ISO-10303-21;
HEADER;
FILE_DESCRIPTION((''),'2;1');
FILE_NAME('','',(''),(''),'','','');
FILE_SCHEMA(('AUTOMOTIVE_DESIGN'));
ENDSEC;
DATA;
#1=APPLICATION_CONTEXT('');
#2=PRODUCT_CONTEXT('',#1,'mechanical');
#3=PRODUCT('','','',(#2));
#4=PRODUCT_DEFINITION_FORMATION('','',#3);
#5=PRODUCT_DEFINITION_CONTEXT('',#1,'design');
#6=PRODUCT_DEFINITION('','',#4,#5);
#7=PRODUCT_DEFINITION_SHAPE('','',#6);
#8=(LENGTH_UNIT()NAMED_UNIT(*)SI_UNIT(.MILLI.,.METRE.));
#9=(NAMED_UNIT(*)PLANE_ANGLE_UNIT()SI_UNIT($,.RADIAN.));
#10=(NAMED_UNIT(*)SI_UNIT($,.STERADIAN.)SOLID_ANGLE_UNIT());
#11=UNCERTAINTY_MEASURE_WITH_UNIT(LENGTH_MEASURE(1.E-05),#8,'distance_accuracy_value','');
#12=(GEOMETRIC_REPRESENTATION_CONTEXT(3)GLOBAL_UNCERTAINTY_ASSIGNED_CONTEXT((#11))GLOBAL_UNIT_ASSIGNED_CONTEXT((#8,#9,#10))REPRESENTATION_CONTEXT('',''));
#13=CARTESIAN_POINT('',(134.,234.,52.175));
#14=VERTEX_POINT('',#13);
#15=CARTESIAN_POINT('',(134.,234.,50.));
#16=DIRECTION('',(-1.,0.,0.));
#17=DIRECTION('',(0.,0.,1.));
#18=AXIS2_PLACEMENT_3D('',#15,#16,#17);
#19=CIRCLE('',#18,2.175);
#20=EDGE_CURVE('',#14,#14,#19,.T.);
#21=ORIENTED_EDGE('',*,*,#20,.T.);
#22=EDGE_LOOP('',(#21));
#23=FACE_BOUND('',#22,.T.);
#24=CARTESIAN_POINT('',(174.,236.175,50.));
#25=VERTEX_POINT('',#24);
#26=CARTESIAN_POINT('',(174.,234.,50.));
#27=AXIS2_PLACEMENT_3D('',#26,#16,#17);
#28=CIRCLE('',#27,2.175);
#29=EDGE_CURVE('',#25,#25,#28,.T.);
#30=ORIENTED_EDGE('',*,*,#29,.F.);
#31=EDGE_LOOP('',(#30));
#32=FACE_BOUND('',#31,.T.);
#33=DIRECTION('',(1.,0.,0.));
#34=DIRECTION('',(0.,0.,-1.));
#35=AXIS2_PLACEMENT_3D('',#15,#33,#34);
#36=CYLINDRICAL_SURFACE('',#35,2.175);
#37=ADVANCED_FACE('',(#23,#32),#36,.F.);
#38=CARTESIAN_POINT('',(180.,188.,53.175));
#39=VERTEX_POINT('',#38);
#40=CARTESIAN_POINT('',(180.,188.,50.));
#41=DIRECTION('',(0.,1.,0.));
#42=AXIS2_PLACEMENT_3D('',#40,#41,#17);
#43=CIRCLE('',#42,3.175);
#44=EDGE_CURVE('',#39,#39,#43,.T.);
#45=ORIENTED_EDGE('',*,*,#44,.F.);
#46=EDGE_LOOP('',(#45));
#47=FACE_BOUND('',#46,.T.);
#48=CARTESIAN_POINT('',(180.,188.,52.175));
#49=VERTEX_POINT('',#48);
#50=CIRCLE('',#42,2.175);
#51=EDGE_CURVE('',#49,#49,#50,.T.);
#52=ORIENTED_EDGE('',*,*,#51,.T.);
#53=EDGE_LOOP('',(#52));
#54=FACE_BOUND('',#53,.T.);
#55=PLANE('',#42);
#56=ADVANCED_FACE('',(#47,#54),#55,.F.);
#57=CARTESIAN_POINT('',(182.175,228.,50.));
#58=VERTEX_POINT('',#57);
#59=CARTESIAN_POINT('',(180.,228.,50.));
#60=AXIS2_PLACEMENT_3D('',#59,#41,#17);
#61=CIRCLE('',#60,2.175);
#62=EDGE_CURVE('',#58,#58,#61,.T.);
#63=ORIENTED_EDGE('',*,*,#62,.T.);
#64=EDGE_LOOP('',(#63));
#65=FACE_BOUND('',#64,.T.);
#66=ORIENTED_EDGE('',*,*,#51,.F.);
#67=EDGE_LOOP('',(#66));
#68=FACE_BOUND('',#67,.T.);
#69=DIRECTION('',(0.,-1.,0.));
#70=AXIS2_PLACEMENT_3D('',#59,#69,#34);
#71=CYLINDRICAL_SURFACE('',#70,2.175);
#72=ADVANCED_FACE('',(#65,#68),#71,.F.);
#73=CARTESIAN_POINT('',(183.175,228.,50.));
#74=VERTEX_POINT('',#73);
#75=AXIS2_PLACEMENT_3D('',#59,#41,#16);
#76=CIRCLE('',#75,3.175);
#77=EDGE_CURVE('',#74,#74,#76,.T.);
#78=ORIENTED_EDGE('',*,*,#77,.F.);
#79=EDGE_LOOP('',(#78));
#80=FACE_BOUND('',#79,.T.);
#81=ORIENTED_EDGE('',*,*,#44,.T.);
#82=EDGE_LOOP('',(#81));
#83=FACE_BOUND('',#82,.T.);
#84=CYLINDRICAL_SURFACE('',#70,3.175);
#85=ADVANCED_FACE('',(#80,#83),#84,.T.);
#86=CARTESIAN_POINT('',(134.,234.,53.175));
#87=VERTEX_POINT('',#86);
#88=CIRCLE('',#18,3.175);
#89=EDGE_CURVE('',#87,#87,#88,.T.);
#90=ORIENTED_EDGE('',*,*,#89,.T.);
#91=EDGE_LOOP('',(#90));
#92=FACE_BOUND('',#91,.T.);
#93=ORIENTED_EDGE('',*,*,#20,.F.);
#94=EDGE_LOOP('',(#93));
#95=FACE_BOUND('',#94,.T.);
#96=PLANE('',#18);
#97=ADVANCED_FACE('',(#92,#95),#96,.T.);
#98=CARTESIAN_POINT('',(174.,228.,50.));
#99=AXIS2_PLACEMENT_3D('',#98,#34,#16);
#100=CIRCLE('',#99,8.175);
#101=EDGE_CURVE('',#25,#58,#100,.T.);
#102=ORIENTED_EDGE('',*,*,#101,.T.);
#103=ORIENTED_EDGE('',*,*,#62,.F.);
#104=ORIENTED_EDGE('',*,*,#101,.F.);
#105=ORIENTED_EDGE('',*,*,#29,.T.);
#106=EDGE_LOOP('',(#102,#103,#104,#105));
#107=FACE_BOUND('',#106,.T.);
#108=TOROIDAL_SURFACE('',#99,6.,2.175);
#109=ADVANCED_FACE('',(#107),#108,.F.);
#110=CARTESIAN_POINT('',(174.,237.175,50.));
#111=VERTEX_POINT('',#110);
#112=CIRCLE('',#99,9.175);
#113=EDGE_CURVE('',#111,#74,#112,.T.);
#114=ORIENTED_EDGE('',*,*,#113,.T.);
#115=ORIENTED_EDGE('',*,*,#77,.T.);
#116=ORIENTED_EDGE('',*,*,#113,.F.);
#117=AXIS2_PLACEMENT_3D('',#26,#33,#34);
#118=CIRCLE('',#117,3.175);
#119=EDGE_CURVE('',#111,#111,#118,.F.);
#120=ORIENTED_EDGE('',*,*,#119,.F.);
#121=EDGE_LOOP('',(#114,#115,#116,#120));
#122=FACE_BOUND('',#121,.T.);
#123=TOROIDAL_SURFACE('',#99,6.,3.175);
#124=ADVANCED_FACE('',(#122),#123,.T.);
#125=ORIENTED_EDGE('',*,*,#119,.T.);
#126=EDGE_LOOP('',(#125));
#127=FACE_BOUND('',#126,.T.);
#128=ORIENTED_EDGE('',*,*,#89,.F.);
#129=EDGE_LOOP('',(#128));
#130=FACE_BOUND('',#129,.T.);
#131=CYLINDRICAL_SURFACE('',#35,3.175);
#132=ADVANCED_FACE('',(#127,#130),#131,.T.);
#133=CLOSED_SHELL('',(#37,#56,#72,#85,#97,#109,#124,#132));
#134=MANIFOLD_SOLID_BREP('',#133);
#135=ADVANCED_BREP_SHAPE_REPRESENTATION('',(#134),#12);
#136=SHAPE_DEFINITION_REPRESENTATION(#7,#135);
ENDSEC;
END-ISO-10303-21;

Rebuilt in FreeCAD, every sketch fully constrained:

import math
import FreeCAD as App
import Part
import Sketcher

V = App.Vector
Q = App.Units.Quantity

doc = App.newDocument("Part")
params = doc.addObject("Spreadsheet::Sheet", "Params")
for row, (alias, value) in enumerate([
    ("sketch1_diameter", "6.35 mm"),
    ("sketch1_diameter2", "4.35 mm"),
    ("sketch2_radius", "6 mm"),
    ("sketch2_width", "40 mm"),
], start=1):
    params.set(f"A{row}", alias)
    params.set(f"B{row}", "=" + value)
    params.setAlias(f"B{row}", alias)

body = doc.addObject("PartDesign::Body", "Body")

sketch1 = body.newObject("Sketcher::SketchObject", "Sketch")
sketch1.AttachmentSupport = (doc.getObject("YZ_Plane"), [""])
sketch1.MapMode = "FlatFace"
sketch1.AttachmentOffset = App.Placement(V(0, 0, 134), App.Rotation())
sketch1.addGeometry([
    Part.Circle(V(234, 50, 0), V(0, 0, 1), 3.2),
    Part.Circle(V(234, 50, 0), V(0, 0, 1), 2.2),
], False)
sketch1.addConstraint([
    Sketcher.Constraint("Coincident", 1, 3, 0, 3),
    Sketcher.Constraint("Diameter", 0, Q("6.35 mm")),
    Sketcher.Constraint("Diameter", 1, Q("4.35 mm")),
    Sketcher.Constraint("DistanceX", -1, 1, 0, 3, Q("234 mm")),
    Sketcher.Constraint("DistanceY", -1, 1, 0, 3, Q("50 mm")),
])
sketch1.setExpression("Constraints[1]", "Params.sketch1_diameter")
sketch1.setExpression("Constraints[2]", "Params.sketch1_diameter2")

sketch2 = body.newObject("Sketcher::SketchObject", "Sketch001")
sketch2.AttachmentSupport = (doc.getObject("XY_Plane"), [""])
sketch2.MapMode = "FlatFace"
sketch2.AttachmentOffset = App.Placement(V(0, 0, 50), App.Rotation())
sketch2.addGeometry([
    Part.LineSegment(V(134, 234, 0), V(174, 234, 0)),
    Part.ArcOfCircle(Part.Circle(V(174, 228, 0), V(0, 0, 1), 6), math.radians(0), math.radians(90)),
    Part.LineSegment(V(180, 228, 0), V(180, 188, 0)),
], False)
sketch2.addConstraint([
    Sketcher.Constraint("Tangent", 0, 2, 1, 2),
    Sketcher.Constraint("Tangent", 1, 1, 2, 1),
    Sketcher.Constraint("Horizontal", 0),
    Sketcher.Constraint("Vertical", 2),
    Sketcher.Constraint("Equal", 0, 2),
    Sketcher.Constraint("Radius", 1, Q("6 mm")),
    Sketcher.Constraint("DistanceX", 0, 1, 0, 2, Q("40 mm")),
    Sketcher.Constraint("DistanceX", -1, 1, 1, 3, Q("174 mm")),
    Sketcher.Constraint("DistanceY", -1, 1, 1, 3, Q("228 mm")),
])
sketch2.setExpression("Constraints[5]", "Params.sketch2_radius")
sketch2.setExpression("Constraints[6]", "Params.sketch2_width")
doc.recompute()

additivepipe = body.newObject("PartDesign::AdditivePipe", "AdditivePipe")
additivepipe.Profile = sketch1
additivepipe.Spine = (sketch2, ["Edge1", "Edge2", "Edge3"])

doc.recompute()
